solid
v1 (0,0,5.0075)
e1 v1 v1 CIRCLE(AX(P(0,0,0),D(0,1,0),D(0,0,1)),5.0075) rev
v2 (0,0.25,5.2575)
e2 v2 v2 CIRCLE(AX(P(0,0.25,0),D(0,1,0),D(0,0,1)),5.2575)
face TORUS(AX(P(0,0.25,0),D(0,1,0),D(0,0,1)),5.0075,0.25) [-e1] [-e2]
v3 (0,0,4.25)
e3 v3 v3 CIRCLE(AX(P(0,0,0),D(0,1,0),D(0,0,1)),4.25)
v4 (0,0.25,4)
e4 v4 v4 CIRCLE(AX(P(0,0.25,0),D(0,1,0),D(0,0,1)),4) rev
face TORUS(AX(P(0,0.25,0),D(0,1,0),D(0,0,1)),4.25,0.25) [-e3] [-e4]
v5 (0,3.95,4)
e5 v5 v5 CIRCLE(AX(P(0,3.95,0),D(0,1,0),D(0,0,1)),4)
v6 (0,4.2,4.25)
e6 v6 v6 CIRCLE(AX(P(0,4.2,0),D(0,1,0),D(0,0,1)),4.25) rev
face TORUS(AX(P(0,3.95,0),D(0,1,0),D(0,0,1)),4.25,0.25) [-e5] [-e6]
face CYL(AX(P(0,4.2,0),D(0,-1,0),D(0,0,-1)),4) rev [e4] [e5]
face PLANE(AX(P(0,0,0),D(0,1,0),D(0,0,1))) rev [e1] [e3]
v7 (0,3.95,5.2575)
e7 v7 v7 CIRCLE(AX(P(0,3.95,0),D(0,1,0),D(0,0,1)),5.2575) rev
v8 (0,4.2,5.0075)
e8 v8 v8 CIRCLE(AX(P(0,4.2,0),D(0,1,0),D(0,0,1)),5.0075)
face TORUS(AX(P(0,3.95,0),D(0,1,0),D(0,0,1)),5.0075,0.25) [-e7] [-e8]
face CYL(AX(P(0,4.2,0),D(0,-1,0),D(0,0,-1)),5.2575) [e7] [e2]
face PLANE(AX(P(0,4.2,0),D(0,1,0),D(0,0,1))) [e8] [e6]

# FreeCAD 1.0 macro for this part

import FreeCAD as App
import Part
import Sketcher
Q = App.Units.Quantity


def edges_at(feature, points):
    """Names of the edges that pass closest to the given points."""
    edges = feature.Shape.Edges
    near = lambda p: min(range(len(edges)), key=lambda i: edges[i].distToShape(Part.Vertex(*p))[0])
    return sorted({f"Edge{near(p) + 1}" for p in points})

doc = App.newDocument("Part")
body = doc.addObject("PartDesign::Body", "Body")

# Sketch on XZ plane
sketch1 = body.newObject("Sketcher::SketchObject", "Sketch")
sketch1.AttachmentSupport = (doc.getObject("XZ_Plane"), [""])
sketch1.MapMode = "FlatFace"
sketch1.addGeometry([
    Part.Circle(App.Vector(0, 0, 0), App.Vector(0, 0, 1), 5.3),
    Part.Circle(App.Vector(0, 0, 0), App.Vector(0, 0, 1), 4),
], False)
sketch1.addConstraint([
    Sketcher.Constraint("Coincident", 0, 3, -1, 1),
    Sketcher.Constraint("Coincident", 1, 3, -1, 1),
    Sketcher.Constraint("Diameter", 1, Q("8 mm")),
    Sketcher.Constraint("Diameter", 0, Q("10.515 mm")),
])
pad1 = body.newObject("PartDesign::Pad", "Pad")
pad1.Profile = sketch1
pad1.Length = 4.2
pad1.Reversed = True
doc.recompute()

fillet = body.newObject("PartDesign::Fillet", "Fillet")
fillet.Base = (pad1, edges_at(pad1, [
    (0, 0, -5.258),
    (0, 4.2, -5.258),
    (0, 0, -4),
    (0, 4.2, -4),
]))
fillet.Radius = 0.25

doc.recompute()
